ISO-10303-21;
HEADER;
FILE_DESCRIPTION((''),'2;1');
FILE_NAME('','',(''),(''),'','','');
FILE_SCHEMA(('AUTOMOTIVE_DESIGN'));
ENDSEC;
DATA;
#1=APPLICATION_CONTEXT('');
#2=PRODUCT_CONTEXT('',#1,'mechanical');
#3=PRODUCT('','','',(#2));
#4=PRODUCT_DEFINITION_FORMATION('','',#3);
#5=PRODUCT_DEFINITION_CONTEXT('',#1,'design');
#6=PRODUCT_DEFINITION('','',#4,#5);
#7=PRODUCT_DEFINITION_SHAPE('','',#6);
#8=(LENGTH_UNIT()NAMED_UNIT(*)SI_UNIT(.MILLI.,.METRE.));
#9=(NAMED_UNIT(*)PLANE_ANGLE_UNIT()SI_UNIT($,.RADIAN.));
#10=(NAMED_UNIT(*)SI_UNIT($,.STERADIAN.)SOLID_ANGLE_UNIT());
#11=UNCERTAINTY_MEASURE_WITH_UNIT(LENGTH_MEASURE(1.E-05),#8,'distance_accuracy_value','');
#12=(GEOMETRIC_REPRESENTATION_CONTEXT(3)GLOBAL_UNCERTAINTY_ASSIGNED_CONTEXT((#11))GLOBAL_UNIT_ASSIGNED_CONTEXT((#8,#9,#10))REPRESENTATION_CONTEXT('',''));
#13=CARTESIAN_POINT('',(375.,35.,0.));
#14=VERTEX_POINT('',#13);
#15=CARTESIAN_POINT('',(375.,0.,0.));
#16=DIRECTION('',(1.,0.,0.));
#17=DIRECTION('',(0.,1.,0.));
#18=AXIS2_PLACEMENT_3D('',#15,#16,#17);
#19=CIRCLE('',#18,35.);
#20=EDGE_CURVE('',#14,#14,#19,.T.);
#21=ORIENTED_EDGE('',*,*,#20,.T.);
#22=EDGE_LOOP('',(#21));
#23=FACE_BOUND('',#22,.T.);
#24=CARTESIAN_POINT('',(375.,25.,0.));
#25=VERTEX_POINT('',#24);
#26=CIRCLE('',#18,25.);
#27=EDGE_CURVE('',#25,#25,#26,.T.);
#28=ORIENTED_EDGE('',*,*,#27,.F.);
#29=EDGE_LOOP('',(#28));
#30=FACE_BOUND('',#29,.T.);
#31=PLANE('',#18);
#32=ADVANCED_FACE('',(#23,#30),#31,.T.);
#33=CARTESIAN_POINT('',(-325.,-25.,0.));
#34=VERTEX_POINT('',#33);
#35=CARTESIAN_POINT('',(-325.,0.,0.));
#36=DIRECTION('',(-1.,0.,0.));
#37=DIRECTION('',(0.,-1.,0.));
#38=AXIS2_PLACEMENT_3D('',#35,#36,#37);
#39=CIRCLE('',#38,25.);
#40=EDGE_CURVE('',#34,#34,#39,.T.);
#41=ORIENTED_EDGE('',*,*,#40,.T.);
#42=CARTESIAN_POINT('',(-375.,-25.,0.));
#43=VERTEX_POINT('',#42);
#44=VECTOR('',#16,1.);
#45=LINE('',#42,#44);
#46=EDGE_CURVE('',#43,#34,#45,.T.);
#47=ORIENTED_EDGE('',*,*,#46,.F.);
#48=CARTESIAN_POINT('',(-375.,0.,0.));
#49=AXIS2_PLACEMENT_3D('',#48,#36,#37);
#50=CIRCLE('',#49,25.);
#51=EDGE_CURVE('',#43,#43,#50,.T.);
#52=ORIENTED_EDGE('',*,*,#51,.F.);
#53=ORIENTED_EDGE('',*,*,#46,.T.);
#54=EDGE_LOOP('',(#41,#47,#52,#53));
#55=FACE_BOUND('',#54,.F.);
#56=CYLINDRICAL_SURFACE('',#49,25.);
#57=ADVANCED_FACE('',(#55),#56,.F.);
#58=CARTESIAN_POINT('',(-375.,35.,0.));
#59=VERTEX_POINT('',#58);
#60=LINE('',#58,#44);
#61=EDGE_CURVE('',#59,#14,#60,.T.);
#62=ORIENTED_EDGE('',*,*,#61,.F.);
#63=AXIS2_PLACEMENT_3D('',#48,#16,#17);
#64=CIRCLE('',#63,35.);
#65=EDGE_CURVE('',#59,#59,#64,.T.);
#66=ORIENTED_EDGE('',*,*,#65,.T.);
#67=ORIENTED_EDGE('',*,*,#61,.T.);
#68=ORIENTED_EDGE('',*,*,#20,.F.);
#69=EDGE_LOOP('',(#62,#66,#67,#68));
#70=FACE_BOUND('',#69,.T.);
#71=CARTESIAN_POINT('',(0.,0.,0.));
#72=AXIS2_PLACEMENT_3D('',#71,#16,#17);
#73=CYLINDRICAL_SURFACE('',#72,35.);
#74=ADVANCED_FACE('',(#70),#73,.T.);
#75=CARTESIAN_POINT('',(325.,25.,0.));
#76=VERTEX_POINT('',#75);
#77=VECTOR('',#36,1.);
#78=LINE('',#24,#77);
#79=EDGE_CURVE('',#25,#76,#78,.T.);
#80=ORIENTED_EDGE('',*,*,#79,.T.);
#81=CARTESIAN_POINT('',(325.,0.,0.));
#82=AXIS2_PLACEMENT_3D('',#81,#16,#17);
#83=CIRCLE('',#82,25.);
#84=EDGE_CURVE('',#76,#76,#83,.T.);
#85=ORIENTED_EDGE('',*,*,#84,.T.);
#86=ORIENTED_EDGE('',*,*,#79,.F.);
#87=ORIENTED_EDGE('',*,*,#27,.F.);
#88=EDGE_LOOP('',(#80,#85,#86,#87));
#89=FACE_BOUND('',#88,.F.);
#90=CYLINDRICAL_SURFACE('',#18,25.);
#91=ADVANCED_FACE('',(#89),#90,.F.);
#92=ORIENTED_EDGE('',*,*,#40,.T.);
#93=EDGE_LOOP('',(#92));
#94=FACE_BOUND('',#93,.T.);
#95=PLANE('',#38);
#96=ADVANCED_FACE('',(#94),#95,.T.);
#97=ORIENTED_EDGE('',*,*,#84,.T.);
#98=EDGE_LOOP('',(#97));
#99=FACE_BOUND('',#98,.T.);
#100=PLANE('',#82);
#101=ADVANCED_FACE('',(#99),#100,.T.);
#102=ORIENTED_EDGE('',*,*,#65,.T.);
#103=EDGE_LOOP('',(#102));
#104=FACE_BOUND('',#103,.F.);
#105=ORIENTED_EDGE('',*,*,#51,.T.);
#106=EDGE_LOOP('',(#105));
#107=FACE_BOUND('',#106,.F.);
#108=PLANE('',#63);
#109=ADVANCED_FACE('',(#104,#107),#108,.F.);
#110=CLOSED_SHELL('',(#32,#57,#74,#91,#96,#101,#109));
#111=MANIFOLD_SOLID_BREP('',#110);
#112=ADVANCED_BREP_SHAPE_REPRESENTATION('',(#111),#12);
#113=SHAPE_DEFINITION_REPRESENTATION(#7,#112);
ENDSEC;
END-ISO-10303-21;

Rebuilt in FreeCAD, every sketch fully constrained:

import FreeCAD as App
import Part
import Sketcher

V = App.Vector
Q = App.Units.Quantity

doc = App.newDocument("Part")
body = doc.addObject("PartDesign::Body", "Body")

sketch1 = body.newObject("Sketcher::SketchObject", "Sketch")
sketch1.AttachmentSupport = (doc.getObject("YZ_Plane"), [""])
sketch1.MapMode = "FlatFace"
sketch1.addGeometry(Part.Circle(V(0, 0, 0), V(0, 0, 1), 35), False)
sketch1.addConstraint([
    Sketcher.Constraint("Coincident", 0, 3, -1, 1),
    Sketcher.Constraint("Diameter", 0, Q("70 mm")),
])
pad1 = body.newObject("PartDesign::Pad", "Pad")
pad1.Profile = sketch1
pad1.Length = 750
pad1.Midplane = True

sketch2 = body.newObject("Sketcher::SketchObject", "Sketch001")
sketch2.AttachmentSupport = (doc.getObject("YZ_Plane"), [""])
sketch2.MapMode = "FlatFace"
sketch2.AttachmentOffset = App.Placement(V(0, 0, -375), App.Rotation())
sketch2.addGeometry(Part.Circle(V(0, 0, 0), V(0, 0, 1), 25), False)
sketch2.addConstraint([
    Sketcher.Constraint("Coincident", 0, 3, -1, 1),
    Sketcher.Constraint("Diameter", 0, Q("50 mm")),
])
pocket1 = body.newObject("PartDesign::Pocket", "Pocket")
pocket1.Profile = sketch2
pocket1.Length = 50
pocket1.Reversed = True

sketch3 = body.newObject("Sketcher::SketchObject", "Sketch002")
sketch3.AttachmentSupport = (doc.getObject("YZ_Plane"), [""])
sketch3.MapMode = "FlatFace"
sketch3.AttachmentOffset = App.Placement(V(0, 0, 375), App.Rotation())
sketch3.addGeometry(Part.Circle(V(0, 0, 0), V(0, 0, 1), 25), False)
sketch3.addConstraint([
    Sketcher.Constraint("Coincident", 0, 3, -1, 1),
    Sketcher.Constraint("Diameter", 0, Q("50 mm")),
])
pocket2 = body.newObject("PartDesign::Pocket", "Pocket001")
pocket2.Profile = sketch3
pocket2.Length = 50

doc.recompute()
